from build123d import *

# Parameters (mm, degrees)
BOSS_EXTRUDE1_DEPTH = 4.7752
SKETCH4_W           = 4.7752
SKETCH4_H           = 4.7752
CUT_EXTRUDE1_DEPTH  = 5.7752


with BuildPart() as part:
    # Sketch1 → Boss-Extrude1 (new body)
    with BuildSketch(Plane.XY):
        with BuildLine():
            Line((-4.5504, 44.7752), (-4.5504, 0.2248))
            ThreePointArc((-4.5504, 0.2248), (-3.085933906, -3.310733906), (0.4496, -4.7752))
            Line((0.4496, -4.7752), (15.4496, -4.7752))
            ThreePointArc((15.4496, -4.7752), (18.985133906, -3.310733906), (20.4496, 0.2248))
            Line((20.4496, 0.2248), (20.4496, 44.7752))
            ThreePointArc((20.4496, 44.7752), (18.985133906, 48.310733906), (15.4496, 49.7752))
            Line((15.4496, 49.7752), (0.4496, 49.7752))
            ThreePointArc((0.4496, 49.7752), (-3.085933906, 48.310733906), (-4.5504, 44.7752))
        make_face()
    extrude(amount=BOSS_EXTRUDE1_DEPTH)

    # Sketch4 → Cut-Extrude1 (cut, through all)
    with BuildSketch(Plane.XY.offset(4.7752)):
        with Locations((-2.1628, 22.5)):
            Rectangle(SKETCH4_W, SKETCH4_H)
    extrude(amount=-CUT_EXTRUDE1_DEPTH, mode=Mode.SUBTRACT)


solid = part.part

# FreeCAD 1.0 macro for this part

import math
import FreeCAD as App
import Part
import Sketcher
Q = App.Units.Quantity

doc = App.newDocument("Part")
body = doc.addObject("PartDesign::Body", "Body")

# Sketch on XY plane
sketch1 = body.newObject("Sketcher::SketchObject", "Sketch")
sketch1.AttachmentSupport = (doc.getObject("XY_Plane"), [""])
sketch1.MapMode = "FlatFace"
sketch1.addGeometry(Part.LineSegment(App.Vector(-5, 45, 0), App.Vector(-5, 0, 0)), False)
sketch1.addGeometry(Part.ArcOfCircle(Part.Circle(App.Vector(0, 0, 0), App.Vector(0, 0, 1), 5), math.radians(180), math.radians(270)), False)
sketch1.addGeometry(Part.LineSegment(App.Vector(0, -5, 0), App.Vector(15, -5, 0)), False)
sketch1.addGeometry(Part.ArcOfCircle(Part.Circle(App.Vector(15, 0, 0), App.Vector(0, 0, 1), 5), math.radians(-90), math.radians(0)), False)
sketch1.addGeometry(Part.LineSegment(App.Vector(20, 0, 0), App.Vector(20, 45, 0)), False)
sketch1.addGeometry(Part.ArcOfCircle(Part.Circle(App.Vector(15, 45, 0), App.Vector(0, 0, 1), 5), math.radians(0), math.radians(90)), False)
sketch1.addGeometry(Part.LineSegment(App.Vector(15, 50, 0), App.Vector(0, 50, 0)), False)
sketch1.addGeometry(Part.ArcOfCircle(Part.Circle(App.Vector(0, 45, 0), App.Vector(0, 0, 1), 5), math.radians(90), math.radians(180)), False)
sketch1.addConstraint(Sketcher.Constraint("Tangent", 0, 2, 1, 1))
sketch1.addConstraint(Sketcher.Constraint("Tangent", 1, 2, 2, 1))
sketch1.addConstraint(Sketcher.Constraint("Tangent", 2, 2, 3, 1))
sketch1.addConstraint(Sketcher.Constraint("Tangent", 3, 2, 4, 1))
sketch1.addConstraint(Sketcher.Constraint("Tangent", 4, 2, 5, 1))
sketch1.addConstraint(Sketcher.Constraint("Tangent", 5, 2, 6, 1))
sketch1.addConstraint(Sketcher.Constraint("Tangent", 6, 2, 7, 1))
sketch1.addConstraint(Sketcher.Constraint("Tangent", 7, 2, 0, 1))
sketch1.addConstraint(Sketcher.Constraint("Vertical", 0))
sketch1.addConstraint(Sketcher.Constraint("Horizontal", 2))
sketch1.addConstraint(Sketcher.Constraint("Vertical", 4))
sketch1.addConstraint(Sketcher.Constraint("Horizontal", 6))
sketch1.addConstraint(Sketcher.Constraint("Equal", 1, 3))
sketch1.addConstraint(Sketcher.Constraint("Equal", 3, 5))
sketch1.addConstraint(Sketcher.Constraint("Equal", 5, 7))
sketch1.addConstraint(Sketcher.Constraint("Radius", 1, Q("5 mm")))
sketch1.addConstraint(Sketcher.Constraint("DistanceX", 2, 1, 2, 2, Q("15 mm")))
sketch1.addConstraint(Sketcher.Constraint("DistanceY", 0, 2, 0, 1, Q("44.5504 mm")))
sketch1.addConstraint(Sketcher.Constraint("DistanceX", -1, 1, 1, 3, Q("0.4496 mm")))
sketch1.addConstraint(Sketcher.Constraint("DistanceY", -1, 1, 1, 3, Q("0.2248 mm")))
pad1 = body.newObject("PartDesign::Pad", "Pad")
pad1.Profile = sketch1
pad1.Length = 4.7752

# Sketch on XY plane
sketch2 = body.newObject("Sketcher::SketchObject", "Sketch001")
sketch2.AttachmentSupport = (doc.getObject("XY_Plane"), [""])
sketch2.MapMode = "FlatFace"
sketch2.AttachmentOffset = App.Placement(App.Vector(0, 0, 4.7752), App.Rotation())
sketch2.addGeometry(Part.LineSegment(App.Vector(-4.6, 24.9, 0), App.Vector(-4.6, 20.1, 0)), False)
sketch2.addGeometry(Part.LineSegment(App.Vector(-4.6, 20.1, 0), App.Vector(0.2, 20.1, 0)), False)
sketch2.addGeometry(Part.LineSegment(App.Vector(0.2, 20.1, 0), App.Vector(0.2, 24.9, 0)), False)
sketch2.addGeometry(Part.LineSegment(App.Vector(0.2, 24.9, 0), App.Vector(-4.6, 24.9, 0)), False)
sketch2.addConstraint(Sketcher.Constraint("Coincident", 0, 2, 1, 1))
sketch2.addConstraint(Sketcher.Constraint("Coincident", 1, 2, 2, 1))
sketch2.addConstraint(Sketcher.Constraint("Coincident", 2, 2, 3, 1))
sketch2.addConstraint(Sketcher.Constraint("Coincident", 3, 2, 0, 1))
sketch2.addConstraint(Sketcher.Constraint("Vertical", 0))
sketch2.addConstraint(Sketcher.Constraint("Horizontal", 1))
sketch2.addConstraint(Sketcher.Constraint("Vertical", 2))
sketch2.addConstraint(Sketcher.Constraint("Horizontal", 3))
sketch2.addConstraint(Sketcher.Constraint("Equal", 3, 0))
sketch2.addConstraint(Sketcher.Constraint("DistanceX", 1, 1, 1, 2, Q("4.7752 mm")))
sketch2.addConstraint(Sketcher.Constraint("DistanceX", 0, 2, -1, 1, Q("4.5504 mm")))
sketch2.addConstraint(Sketcher.Constraint("DistanceY", -1, 1, 0, 2, Q("20.1124 mm")))
pocket1 = body.newObject("PartDesign::Pocket", "Pocket")
pocket1.Profile = sketch2
pocket1.Type = "ThroughAll"

doc.recompute()
